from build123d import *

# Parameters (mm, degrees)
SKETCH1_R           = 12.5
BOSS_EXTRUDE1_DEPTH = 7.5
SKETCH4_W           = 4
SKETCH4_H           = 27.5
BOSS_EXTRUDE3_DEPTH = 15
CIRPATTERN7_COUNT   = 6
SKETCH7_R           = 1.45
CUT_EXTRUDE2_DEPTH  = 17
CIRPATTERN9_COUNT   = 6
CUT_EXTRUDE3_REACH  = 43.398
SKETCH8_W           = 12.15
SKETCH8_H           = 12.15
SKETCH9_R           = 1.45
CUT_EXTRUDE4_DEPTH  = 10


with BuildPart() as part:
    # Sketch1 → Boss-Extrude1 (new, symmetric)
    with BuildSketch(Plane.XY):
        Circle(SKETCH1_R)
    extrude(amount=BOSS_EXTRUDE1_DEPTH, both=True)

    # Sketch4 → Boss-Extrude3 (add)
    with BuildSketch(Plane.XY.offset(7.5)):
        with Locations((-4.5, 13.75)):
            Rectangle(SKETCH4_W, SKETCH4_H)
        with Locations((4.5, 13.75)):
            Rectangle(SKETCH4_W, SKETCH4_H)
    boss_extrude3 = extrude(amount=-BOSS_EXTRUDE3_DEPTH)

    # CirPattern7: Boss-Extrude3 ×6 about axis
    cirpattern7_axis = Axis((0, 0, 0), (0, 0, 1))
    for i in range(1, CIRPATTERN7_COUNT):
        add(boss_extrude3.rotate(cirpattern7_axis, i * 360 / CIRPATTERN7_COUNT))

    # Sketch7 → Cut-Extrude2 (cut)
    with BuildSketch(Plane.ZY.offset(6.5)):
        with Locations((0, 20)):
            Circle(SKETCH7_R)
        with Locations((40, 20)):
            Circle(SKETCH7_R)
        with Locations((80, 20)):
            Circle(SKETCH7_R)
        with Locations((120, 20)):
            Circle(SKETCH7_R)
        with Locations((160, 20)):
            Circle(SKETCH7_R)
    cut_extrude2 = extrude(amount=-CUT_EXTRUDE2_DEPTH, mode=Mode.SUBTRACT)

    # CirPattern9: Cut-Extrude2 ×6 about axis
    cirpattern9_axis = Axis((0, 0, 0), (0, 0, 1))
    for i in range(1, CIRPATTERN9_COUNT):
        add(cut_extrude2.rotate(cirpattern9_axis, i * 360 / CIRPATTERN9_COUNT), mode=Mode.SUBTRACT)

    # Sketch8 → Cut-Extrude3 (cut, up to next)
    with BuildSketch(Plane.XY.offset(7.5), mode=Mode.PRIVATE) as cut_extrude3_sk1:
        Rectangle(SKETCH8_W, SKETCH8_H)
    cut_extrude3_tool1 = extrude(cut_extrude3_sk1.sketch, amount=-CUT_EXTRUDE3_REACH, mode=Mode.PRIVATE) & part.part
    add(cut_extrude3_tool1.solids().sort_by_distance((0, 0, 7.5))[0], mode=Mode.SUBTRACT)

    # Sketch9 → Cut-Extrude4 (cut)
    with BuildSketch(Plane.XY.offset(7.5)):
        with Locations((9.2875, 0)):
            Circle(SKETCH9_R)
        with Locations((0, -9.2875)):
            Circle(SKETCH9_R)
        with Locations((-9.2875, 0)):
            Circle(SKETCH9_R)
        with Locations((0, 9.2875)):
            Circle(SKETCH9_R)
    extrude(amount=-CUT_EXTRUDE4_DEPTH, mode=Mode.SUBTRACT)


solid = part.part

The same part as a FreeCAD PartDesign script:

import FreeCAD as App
import Part
import Sketcher

doc = App.newDocument("Part")
params = doc.addObject("Spreadsheet::Sheet", "Params")
for row, (alias, value) in enumerate([
    ("sketch1_diameter", "25 mm"),
    ("pad1_length", "15 mm"),
    ("sketch2_width", "4 mm"),
    ("sketch2_height", "27.5 mm"),
    ("pad2_length", "15 mm"),
    ("sketch3_diameter", "2.9 mm"),
    ("pocket1_length", "17 mm"),
    ("sketch4_width", "12.15 mm"),
    ("sketch5_diameter", "2.9 mm"),
    ("pocket3_length", "10 mm"),
], start=1):
    params.set(f"A{row}", alias)
    params.set(f"B{row}", "=" + value)
    params.setAlias(f"B{row}", alias)

body = doc.addObject("PartDesign::Body", "Body")

# Sketch on XY plane
sketch1 = body.newObject("Sketcher::SketchObject", "Sketch")
sketch1.AttachmentSupport = (doc.getObject("XY_Plane"), [""])
sketch1.MapMode = "FlatFace"
sketch1.addGeometry(Part.Circle(App.Vector(0, 0, 0), App.Vector(0, 0, 1), 12), False)
sketch1.addConstraint([
    Sketcher.Constraint("Coincident", 0, 3, -1, 1),
    Sketcher.Constraint("Diameter", 0, 25.0),
])
sketch1.setExpression("Constraints[1]", "Params.sketch1_diameter")
pad1 = body.newObject("PartDesign::Pad", "Pad")
pad1.Profile = sketch1
pad1.setExpression("Length", "Params.pad1_length")
pad1.Midplane = True

# Sketch on XY plane
sketch2 = body.newObject("Sketcher::SketchObject", "Sketch001")
sketch2.AttachmentSupport = (doc.getObject("XY_Plane"), [""])
sketch2.MapMode = "FlatFace"
sketch2.AttachmentOffset = App.Placement(App.Vector(0, 0, 7.5), App.Rotation())
sketch2.addGeometry([
    Part.LineSegment(App.Vector(-6.5, 27.5, 0), App.Vector(-6.5, 0, 0)),  # 0
    Part.LineSegment(App.Vector(-6.5, 0, 0), App.Vector(-2.5, 0, 0)),  # 1
    Part.LineSegment(App.Vector(-2.5, 0, 0), App.Vector(-2.5, 27.5, 0)),  # 2
    Part.LineSegment(App.Vector(-2.5, 27.5, 0), App.Vector(-6.5, 27.5, 0)),  # 3
    Part.LineSegment(App.Vector(2.5, 27.5, 0), App.Vector(2.5, 0, 0)),  # 4
    Part.LineSegment(App.Vector(2.5, 0, 0), App.Vector(6.5, 0, 0)),  # 5
    Part.LineSegment(App.Vector(6.5, 0, 0), App.Vector(6.5, 27.5, 0)),  # 6
    Part.LineSegment(App.Vector(6.5, 27.5, 0), App.Vector(2.5, 27.5, 0)),  # 7
], False)
sketch2.addConstraint([
    Sketcher.Constraint("Coincident", 0, 2, 1, 1),
    Sketcher.Constraint("Coincident", 1, 2, 2, 1),
    Sketcher.Constraint("Coincident", 2, 2, 3, 1),
    Sketcher.Constraint("Coincident", 3, 2, 0, 1),
    Sketcher.Constraint("Coincident", 4, 2, 5, 1),
    Sketcher.Constraint("Coincident", 5, 2, 6, 1),
    Sketcher.Constraint("Coincident", 6, 2, 7, 1),
    Sketcher.Constraint("Coincident", 7, 2, 4, 1),
    Sketcher.Constraint("Vertical", 0),
    Sketcher.Constraint("Horizontal", 1),
    Sketcher.Constraint("Vertical", 2),
    Sketcher.Constraint("Horizontal", 3),
    Sketcher.Constraint("Vertical", 4),
    Sketcher.Constraint("Horizontal", 5),
    Sketcher.Constraint("Vertical", 6),
    Sketcher.Constraint("Horizontal", 7),
    Sketcher.Constraint("Symmetric", 1, 2, 4, 2, -1, 1),
    Sketcher.Constraint("Symmetric", 0, 2, 5, 2, -2),
    Sketcher.Constraint("Horizontal", 3, 2, 6, 2),
    Sketcher.Constraint("DistanceX", 1, 1, 1, 2, 4.0),
    Sketcher.Constraint("DistanceY", 0, 2, 0, 1, 27.5),
    Sketcher.Constraint("DistanceX", 1, 2, 4, 2, 5.0),
])
sketch2.setExpression("Constraints[19]", "Params.sketch2_width")
sketch2.setExpression("Constraints[20]", "Params.sketch2_height")
pad2 = body.newObject("PartDesign::Pad", "Pad001")
pad2.Profile = sketch2
pad2.setExpression("Length", "Params.pad2_length")
pad2.Reversed = True
doc.recompute()

polarpattern = body.newObject("PartDesign::PolarPattern", "PolarPattern")
polarpattern.Originals = [pad2]
polarpattern.Axis = (doc.getObject("Z_Axis"), [""])
polarpattern.Angle = 360
polarpattern.Occurrences = 6
body.Tip = polarpattern

# Sketch on YZ plane
sketch3 = body.newObject("Sketcher::SketchObject", "Sketch002")
sketch3.AttachmentSupport = (doc.getObject("YZ_Plane"), [""])
sketch3.MapMode = "FlatFace"
sketch3.AttachmentOffset = App.Placement(App.Vector(0, 0, -6.5), App.Rotation())
sketch3.addGeometry([
    Part.Circle(App.Vector(20, 0, 0), App.Vector(0, 0, 1), 1.4),  # 0
    Part.Circle(App.Vector(20, 40, 0), App.Vector(0, 0, 1), 1.4),  # 1
    Part.Circle(App.Vector(20, 80, 0), App.Vector(0, 0, 1), 1.4),  # 2
    Part.Circle(App.Vector(20, 120, 0), App.Vector(0, 0, 1), 1.4),  # 3
    Part.Circle(App.Vector(20, 160, 0), App.Vector(0, 0, 1), 1.4),  # 4
], False)
sketch3.addConstraint([
    Sketcher.Constraint("Equal", 0, 1),
    Sketcher.Constraint("Equal", 1, 2),
    Sketcher.Constraint("Equal", 2, 3),
    Sketcher.Constraint("Equal", 3, 4),
    Sketcher.Constraint("PointOnObject", 0, 3, -1),
    Sketcher.Constraint("Vertical", 0, 3, 1, 3),
    Sketcher.Constraint("Vertical", 1, 3, 2, 3),
    Sketcher.Constraint("Vertical", 2, 3, 3, 3),
    Sketcher.Constraint("Vertical", 3, 3, 4, 3),
    Sketcher.Constraint("Diameter", 0, 2.9),
    Sketcher.Constraint("DistanceX", -1, 1, 0, 3, 20.0),
    Sketcher.Constraint("DistanceY", -1, 1, 1, 3, 40.0),
    Sketcher.Constraint("DistanceY", -1, 1, 2, 3, 80.0),
    Sketcher.Constraint("DistanceY", -1, 1, 3, 3, 120.0),
    Sketcher.Constraint("DistanceY", -1, 1, 4, 3, 160.0),
])
sketch3.setExpression("Constraints[9]", "Params.sketch3_diameter")
pocket1 = body.newObject("PartDesign::Pocket", "Pocket")
pocket1.Profile = sketch3
pocket1.setExpression("Length", "Params.pocket1_length")
pocket1.Reversed = True
doc.recompute()

polarpattern2 = body.newObject("PartDesign::PolarPattern", "PolarPattern001")
polarpattern2.Originals = [pocket1]
polarpattern2.Axis = (doc.getObject("Z_Axis"), [""])
polarpattern2.Angle = 360
polarpattern2.Occurrences = 6
body.Tip = polarpattern2

# Sketch on XY plane
sketch4 = body.newObject("Sketcher::SketchObject", "Sketch003")
sketch4.AttachmentSupport = (doc.getObject("XY_Plane"), [""])
sketch4.MapMode = "FlatFace"
sketch4.AttachmentOffset = App.Placement(App.Vector(0, 0, 7.5), App.Rotation())
sketch4.addGeometry([
    Part.LineSegment(App.Vector(-6, 6, 0), App.Vector(-6, -6, 0)),
    Part.LineSegment(App.Vector(-6, -6, 0), App.Vector(6, -6, 0)),
    Part.LineSegment(App.Vector(6, -6, 0), App.Vector(6, 6, 0)),
    Part.LineSegment(App.Vector(6, 6, 0), App.Vector(-6, 6, 0)),
], False)
sketch4.addConstraint([
    Sketcher.Constraint("Coincident", 0, 2, 1, 1),
    Sketcher.Constraint("Coincident", 1, 2, 2, 1),
    Sketcher.Constraint("Coincident", 2, 2, 3, 1),
    Sketcher.Constraint("Coincident", 3, 2, 0, 1),
    Sketcher.Constraint("Vertical", 0),
    Sketcher.Constraint("Horizontal", 1),
    Sketcher.Constraint("Vertical", 2),
    Sketcher.Constraint("Horizontal", 3),
    Sketcher.Constraint("Symmetric", 0, 2, 2, 2, -1, 1),
    Sketcher.Constraint("Equal", 3, 0),
    Sketcher.Constraint("DistanceX", 1, 1, 1, 2, 12.15),
])
sketch4.setExpression("Constraints[10]", "Params.sketch4_width")
pocket2 = body.newObject("PartDesign::Pocket", "Pocket001")
pocket2.Profile = sketch4
pocket2.Type = "UpToFirst"

# Sketch on XY plane
sketch5 = body.newObject("Sketcher::SketchObject", "Sketch004")
sketch5.AttachmentSupport = (doc.getObject("XY_Plane"), [""])
sketch5.MapMode = "FlatFace"
sketch5.AttachmentOffset = App.Placement(App.Vector(0, 0, 7.5), App.Rotation())
sketch5.addGeometry([
    Part.Circle(App.Vector(9.3, 0, 0), App.Vector(0, 0, 1), 1.4),
    Part.Circle(App.Vector(0, -9.3, 0), App.Vector(0, 0, 1), 1.4),
    Part.Circle(App.Vector(-9.3, 0, 0), App.Vector(0, 0, 1), 1.4),
    Part.Circle(App.Vector(0, 9.3, 0), App.Vector(0, 0, 1), 1.4),
], False)
sketch5.addConstraint([
    Sketcher.Constraint("Equal", 0, 1),
    Sketcher.Constraint("Equal", 1, 2),
    Sketcher.Constraint("Equal", 2, 3),
    Sketcher.Constraint("Symmetric", 0, 3, 2, 3, -1, 1),
    Sketcher.Constraint("Symmetric", 1, 3, 3, 3, -1, 1),
    Sketcher.Constraint("PointOnObject", 0, 3, -1),
    Sketcher.Constraint("PointOnObject", 1, 3, -2),
    Sketcher.Constraint("Diameter", 0, 2.9),
    Sketcher.Constraint("DistanceX", 2, 3, 0, 3, 18.575),
    Sketcher.Constraint("DistanceY", 1, 3, 3, 3, 18.575),
])
sketch5.setExpression("Constraints[7]", "Params.sketch5_diameter")
pocket3 = body.newObject("PartDesign::Pocket", "Pocket002")
pocket3.Profile = sketch5
pocket3.setExpression("Length", "Params.pocket3_length")

doc.recompute()
